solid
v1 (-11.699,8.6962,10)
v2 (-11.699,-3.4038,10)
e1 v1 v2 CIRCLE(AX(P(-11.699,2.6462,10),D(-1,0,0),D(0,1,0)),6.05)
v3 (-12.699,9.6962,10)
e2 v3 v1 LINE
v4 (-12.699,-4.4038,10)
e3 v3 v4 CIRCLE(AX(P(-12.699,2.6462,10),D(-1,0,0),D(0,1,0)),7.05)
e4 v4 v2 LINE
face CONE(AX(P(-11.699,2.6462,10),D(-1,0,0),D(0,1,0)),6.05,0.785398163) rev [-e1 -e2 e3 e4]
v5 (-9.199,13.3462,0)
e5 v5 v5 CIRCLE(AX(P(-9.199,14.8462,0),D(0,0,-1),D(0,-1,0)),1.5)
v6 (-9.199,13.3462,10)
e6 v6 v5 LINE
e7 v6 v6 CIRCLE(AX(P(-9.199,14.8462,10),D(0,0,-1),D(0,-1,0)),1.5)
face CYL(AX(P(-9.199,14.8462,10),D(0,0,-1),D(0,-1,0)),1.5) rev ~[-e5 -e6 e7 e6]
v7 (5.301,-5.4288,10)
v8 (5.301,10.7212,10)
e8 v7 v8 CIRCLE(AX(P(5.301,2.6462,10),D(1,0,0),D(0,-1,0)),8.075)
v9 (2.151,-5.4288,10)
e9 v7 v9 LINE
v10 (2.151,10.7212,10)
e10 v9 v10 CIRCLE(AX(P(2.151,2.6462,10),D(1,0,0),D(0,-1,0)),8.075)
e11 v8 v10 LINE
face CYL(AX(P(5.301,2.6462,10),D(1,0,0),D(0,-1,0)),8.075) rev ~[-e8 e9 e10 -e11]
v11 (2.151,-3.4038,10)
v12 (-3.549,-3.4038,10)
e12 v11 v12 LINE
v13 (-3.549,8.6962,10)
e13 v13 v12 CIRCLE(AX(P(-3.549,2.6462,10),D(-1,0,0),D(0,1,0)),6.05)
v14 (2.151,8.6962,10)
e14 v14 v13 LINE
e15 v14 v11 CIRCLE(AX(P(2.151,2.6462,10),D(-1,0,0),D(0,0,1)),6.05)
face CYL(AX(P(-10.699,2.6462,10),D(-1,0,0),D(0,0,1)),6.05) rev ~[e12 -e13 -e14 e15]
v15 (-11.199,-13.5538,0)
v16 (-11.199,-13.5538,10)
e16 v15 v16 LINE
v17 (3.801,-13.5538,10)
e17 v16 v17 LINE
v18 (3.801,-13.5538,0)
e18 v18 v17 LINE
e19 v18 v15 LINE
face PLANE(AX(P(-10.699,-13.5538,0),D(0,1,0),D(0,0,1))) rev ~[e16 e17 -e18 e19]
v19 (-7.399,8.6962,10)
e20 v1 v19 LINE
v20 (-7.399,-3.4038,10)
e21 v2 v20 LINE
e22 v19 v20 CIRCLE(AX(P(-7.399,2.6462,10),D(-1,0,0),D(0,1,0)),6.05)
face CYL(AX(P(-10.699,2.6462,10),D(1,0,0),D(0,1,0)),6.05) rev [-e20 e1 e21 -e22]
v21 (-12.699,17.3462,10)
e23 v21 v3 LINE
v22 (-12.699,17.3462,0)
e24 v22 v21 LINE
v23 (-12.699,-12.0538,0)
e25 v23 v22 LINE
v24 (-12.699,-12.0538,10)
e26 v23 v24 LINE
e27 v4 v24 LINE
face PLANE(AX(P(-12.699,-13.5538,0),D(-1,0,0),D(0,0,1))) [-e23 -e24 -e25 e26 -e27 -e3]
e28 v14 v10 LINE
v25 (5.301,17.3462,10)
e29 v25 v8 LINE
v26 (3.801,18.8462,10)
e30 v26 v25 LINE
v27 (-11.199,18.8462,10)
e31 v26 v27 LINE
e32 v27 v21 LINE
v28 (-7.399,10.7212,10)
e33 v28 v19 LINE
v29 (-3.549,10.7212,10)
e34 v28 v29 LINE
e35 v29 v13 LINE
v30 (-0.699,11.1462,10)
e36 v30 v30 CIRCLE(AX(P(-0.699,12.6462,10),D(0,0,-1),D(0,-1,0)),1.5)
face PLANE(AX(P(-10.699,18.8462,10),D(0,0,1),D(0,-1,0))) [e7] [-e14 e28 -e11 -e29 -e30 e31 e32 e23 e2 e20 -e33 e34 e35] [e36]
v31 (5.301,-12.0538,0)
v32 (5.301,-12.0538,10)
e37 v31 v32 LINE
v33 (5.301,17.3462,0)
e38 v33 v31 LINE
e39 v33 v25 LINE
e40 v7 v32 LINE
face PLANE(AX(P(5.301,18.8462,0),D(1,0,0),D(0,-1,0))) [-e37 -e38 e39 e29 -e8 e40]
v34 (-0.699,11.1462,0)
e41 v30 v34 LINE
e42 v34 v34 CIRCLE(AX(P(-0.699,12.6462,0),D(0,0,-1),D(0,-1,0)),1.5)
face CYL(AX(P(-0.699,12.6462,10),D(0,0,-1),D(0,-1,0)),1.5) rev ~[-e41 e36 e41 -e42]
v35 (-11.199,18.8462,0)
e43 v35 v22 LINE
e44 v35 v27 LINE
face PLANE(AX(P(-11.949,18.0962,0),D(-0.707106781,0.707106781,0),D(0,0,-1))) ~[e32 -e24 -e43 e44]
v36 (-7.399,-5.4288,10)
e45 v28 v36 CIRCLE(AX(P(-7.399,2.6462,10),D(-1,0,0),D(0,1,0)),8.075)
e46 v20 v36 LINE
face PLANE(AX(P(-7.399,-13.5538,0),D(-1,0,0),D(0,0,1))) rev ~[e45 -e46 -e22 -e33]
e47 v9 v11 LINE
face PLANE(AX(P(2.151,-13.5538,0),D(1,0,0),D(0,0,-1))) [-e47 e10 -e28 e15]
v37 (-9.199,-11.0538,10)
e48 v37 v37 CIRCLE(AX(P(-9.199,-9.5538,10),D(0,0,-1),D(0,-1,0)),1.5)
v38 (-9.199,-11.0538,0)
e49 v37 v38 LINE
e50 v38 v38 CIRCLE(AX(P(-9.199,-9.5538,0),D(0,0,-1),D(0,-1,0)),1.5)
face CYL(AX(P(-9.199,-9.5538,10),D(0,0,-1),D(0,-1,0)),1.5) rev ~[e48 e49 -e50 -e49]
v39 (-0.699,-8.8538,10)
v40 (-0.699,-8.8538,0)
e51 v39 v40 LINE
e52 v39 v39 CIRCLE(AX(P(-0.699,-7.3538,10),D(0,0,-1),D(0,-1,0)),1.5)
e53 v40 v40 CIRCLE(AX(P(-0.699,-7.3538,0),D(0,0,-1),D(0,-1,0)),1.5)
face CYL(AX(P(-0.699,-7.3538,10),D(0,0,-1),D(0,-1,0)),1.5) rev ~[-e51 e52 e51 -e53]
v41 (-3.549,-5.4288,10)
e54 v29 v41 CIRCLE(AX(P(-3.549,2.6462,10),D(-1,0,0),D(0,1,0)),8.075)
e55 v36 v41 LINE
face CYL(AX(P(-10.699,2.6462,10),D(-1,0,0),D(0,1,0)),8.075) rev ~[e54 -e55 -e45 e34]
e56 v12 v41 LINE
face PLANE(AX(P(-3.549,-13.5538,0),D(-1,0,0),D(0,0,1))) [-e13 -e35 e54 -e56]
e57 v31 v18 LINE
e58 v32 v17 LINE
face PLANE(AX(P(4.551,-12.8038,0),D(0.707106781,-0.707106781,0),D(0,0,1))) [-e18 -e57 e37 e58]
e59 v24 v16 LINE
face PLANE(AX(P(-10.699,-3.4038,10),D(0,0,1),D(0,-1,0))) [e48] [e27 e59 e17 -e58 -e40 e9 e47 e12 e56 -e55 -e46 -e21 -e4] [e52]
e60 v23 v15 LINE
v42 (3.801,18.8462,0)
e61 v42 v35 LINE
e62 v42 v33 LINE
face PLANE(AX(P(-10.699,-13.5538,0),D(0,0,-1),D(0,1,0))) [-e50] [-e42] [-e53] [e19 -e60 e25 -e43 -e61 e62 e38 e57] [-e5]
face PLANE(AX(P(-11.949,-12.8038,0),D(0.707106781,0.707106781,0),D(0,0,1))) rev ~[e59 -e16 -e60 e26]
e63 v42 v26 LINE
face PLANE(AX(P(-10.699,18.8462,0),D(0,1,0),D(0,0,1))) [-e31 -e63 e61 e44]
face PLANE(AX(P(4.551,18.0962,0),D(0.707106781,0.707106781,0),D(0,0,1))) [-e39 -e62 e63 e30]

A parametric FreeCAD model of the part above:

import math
import FreeCAD as App
import Part
import Sketcher


def edges_at(feature, points):
    """Names of the edges that pass closest to the given points."""
    edges = feature.Shape.Edges
    near = lambda p: min(range(len(edges)), key=lambda i: edges[i].distToShape(Part.Vertex(*p))[0])
    return sorted({f"Edge{near(p) + 1}" for p in points})

doc = App.newDocument("Part")
body = doc.addObject("PartDesign::Body", "Body")

# Sketch on XY plane
sketch1 = body.newObject("Sketcher::SketchObject", "Sketch")
sketch1.AttachmentSupport = (doc.getObject("XY_Plane"), [""])
sketch1.MapMode = "FlatFace"
sketch1.addGeometry([
    Part.LineSegment(App.Vector(5, 19, 0), App.Vector(-11, 19, 0)),
    Part.LineSegment(App.Vector(-11, 19, 0), App.Vector(-11, -14, 0)),
    Part.LineSegment(App.Vector(-11, -14, 0), App.Vector(5, -14, 0)),
    Part.LineSegment(App.Vector(5, -14, 0), App.Vector(5, 19, 0)),
], False)
sketch1.addConstraint([
    Sketcher.Constraint("Coincident", 0, 2, 1, 1),
    Sketcher.Constraint("Coincident", 1, 2, 2, 1),
    Sketcher.Constraint("Coincident", 2, 2, 3, 1),
    Sketcher.Constraint("Coincident", 3, 2, 0, 1),
    Sketcher.Constraint("Horizontal", 0),
    Sketcher.Constraint("Vertical", 1),
    Sketcher.Constraint("Horizontal", 2),
    Sketcher.Constraint("Vertical", 3),
    Sketcher.Constraint("DistanceX", 0, 2, 0, 1, 16.0),
    Sketcher.Constraint("DistanceY", 1, 2, 1, 1, 32.4),
    Sketcher.Constraint("DistanceX", 0, 2, -1, 1, 10.699),
    Sketcher.Constraint("DistanceY", -1, 1, 0, 2, 18.8462),
])
pad1 = body.newObject("PartDesign::Pad", "Pad")
pad1.Profile = sketch1
pad1.Length = 10

# Sketch on YZ plane
sketch2 = body.newObject("Sketcher::SketchObject", "Sketch001")
sketch2.AttachmentSupport = (doc.getObject("YZ_Plane"), [""])
sketch2.MapMode = "FlatFace"
sketch2.AttachmentOffset = App.Placement(App.Vector(0, 0, -10.699), App.Rotation())
sketch2.addGeometry(Part.Circle(App.Vector(3, 10, 0), App.Vector(0, 0, 1), 6), False)
sketch2.addConstraint([
    Sketcher.Constraint("Diameter", 0, 12.1),
    Sketcher.Constraint("DistanceY", -1, 1, 0, 3, 10.0),
    Sketcher.Constraint("DistanceX", -1, 1, 0, 3, 2.6462),
])
pocket1 = body.newObject("PartDesign::Pocket", "Pocket")
pocket1.Profile = sketch2
pocket1.Length = 13
pocket1.Reversed = True

# Sketch on YZ plane
sketch3 = body.newObject("Sketcher::SketchObject", "Sketch002")
sketch3.AttachmentSupport = (doc.getObject("YZ_Plane"), [""])
sketch3.MapMode = "FlatFace"
sketch3.AttachmentOffset = App.Placement(App.Vector(0, 0, -10.699), App.Rotation())
sketch3.addGeometry([
    Part.ArcOfCircle(Part.Circle(App.Vector(2.6, 10, 0), App.Vector(0, 0, 1), 6.1), math.radians(180), math.radians(360)),
    Part.LineSegment(App.Vector(8.7, 10, 0), App.Vector(10.7, 10, 0)),
    Part.ArcOfCircle(Part.Circle(App.Vector(2.6, 10, 0), App.Vector(0, 0, 1), 8.1), math.radians(180), math.radians(360)),
    Part.LineSegment(App.Vector(-5.4, 10, 0), App.Vector(-3.4, 10, 0)),
], False)
sketch3.addConstraint([
    Sketcher.Constraint("Coincident", 0, 2, 1, 1),
    Sketcher.Constraint("Coincident", 1, 2, 2, 2),
    Sketcher.Constraint("Coincident", 2, 1, 3, 1),
    Sketcher.Constraint("Coincident", 3, 2, 0, 1),
    Sketcher.Constraint("Horizontal", 1),
    Sketcher.Constraint("Horizontal", 3),
    Sketcher.Constraint("Coincident", 2, 3, 0, 3),
    Sketcher.Constraint("Horizontal", 2, 3, 0, 2),
    Sketcher.Constraint("Horizontal", 1, 2, 2, 1),
    Sketcher.Constraint("Radius", 2, 8.075),
    Sketcher.Constraint("Radius", 0, 6.05),
    Sketcher.Constraint("DistanceY", -1, 1, 0, 3, 10.0),
    Sketcher.Constraint("DistanceX", -1, 1, 0, 3, 2.6462),
])
pocket2 = body.newObject("PartDesign::Pocket", "Pocket001")
pocket2.Profile = sketch3
pocket2.Length = 7.15
pocket2.Reversed = True

# Sketch on YZ plane
sketch4 = body.newObject("Sketcher::SketchObject", "Sketch003")
sketch4.AttachmentSupport = (doc.getObject("YZ_Plane"), [""])
sketch4.MapMode = "FlatFace"
sketch4.AttachmentOffset = App.Placement(App.Vector(0, 0, -10.699), App.Rotation())
sketch4.addGeometry([
    Part.ArcOfCircle(Part.Circle(App.Vector(2.6, 10, 0), App.Vector(0, 0, 1), 6.1), math.radians(180), math.radians(360)),
    Part.LineSegment(App.Vector(8.7, 10, 0), App.Vector(10.7, 10, 0)),
    Part.ArcOfCircle(Part.Circle(App.Vector(2.6, 10, 0), App.Vector(0, 0, 1), 8.1), math.radians(180), math.radians(360)),
    Part.LineSegment(App.Vector(-5.4, 10, 0), App.Vector(-3.4, 10, 0)),
], False)
sketch4.addConstraint([
    Sketcher.Constraint("Coincident", 0, 2, 1, 1),
    Sketcher.Constraint("Coincident", 1, 2, 2, 2),
    Sketcher.Constraint("Coincident", 2, 1, 3, 1),
    Sketcher.Constraint("Coincident", 3, 2, 0, 1),
    Sketcher.Constraint("Horizontal", 1),
    Sketcher.Constraint("Horizontal", 3),
    Sketcher.Constraint("Coincident", 2, 3, 0, 3),
    Sketcher.Constraint("Horizontal", 2, 3, 0, 2),
    Sketcher.Constraint("Horizontal", 1, 2, 2, 1),
    Sketcher.Constraint("Radius", 2, 8.075),
    Sketcher.Constraint("Radius", 0, 6.05),
    Sketcher.Constraint("DistanceY", -1, 1, 0, 3, 10.0),
    Sketcher.Constraint("DistanceX", -1, 1, 0, 3, 2.6462),
])
pad2 = body.newObject("PartDesign::Pad", "Pad001")
pad2.Profile = sketch4
pad2.Length = 3.3

# Sketch on YZ plane
sketch5 = body.newObject("Sketcher::SketchObject", "Sketch004")
sketch5.AttachmentSupport = (doc.getObject("YZ_Plane"), [""])
sketch5.MapMode = "FlatFace"
sketch5.AttachmentOffset = App.Placement(App.Vector(0, 0, 5.301), App.Rotation())
sketch5.addGeometry([
    Part.LineSegment(App.Vector(11, 10, 0), App.Vector(-5, 10, 0)),
    Part.ArcOfCircle(Part.Circle(App.Vector(3, 10, 0), App.Vector(0, 0, 1), 8), math.radians(180), math.radians(360)),
], False)
sketch5.addConstraint([
    Sketcher.Constraint("Coincident", 0, 1, 1, 2),
    Sketcher.Constraint("Coincident", 1, 1, 0, 2),
    Sketcher.Constraint("Horizontal", 0),
    Sketcher.Constraint("Horizontal", 1, 3, 0, 1),
    Sketcher.Constraint("DistanceY", -1, 1, 1, 3, 10.0),
    Sketcher.Constraint("Radius", 1, 8.075),
    Sketcher.Constraint("DistanceX", -1, 1, 1, 3, 2.6462),
])
pocket3 = body.newObject("PartDesign::Pocket", "Pocket002")
pocket3.Profile = sketch5
pocket3.Length = 3.15

# Sketch on XY plane
sketch6 = body.newObject("Sketcher::SketchObject", "Sketch005")
sketch6.AttachmentSupport = (doc.getObject("XY_Plane"), [""])
sketch6.MapMode = "FlatFace"
sketch6.AttachmentOffset = App.Placement(App.Vector(0, 0, 10), App.Rotation())
sketch6.addGeometry([
    Part.Circle(App.Vector(-0.7, -7.4, 0), App.Vector(0, 0, 1), 1.5),
    Part.Circle(App.Vector(-0.7, 12.6, 0), App.Vector(0, 0, 1), 1.5),
], False)
sketch6.addConstraint([
    Sketcher.Constraint("Equal", 0, 1),
    Sketcher.Constraint("Vertical", 0, 3, 1, 3),
    Sketcher.Constraint("Diameter", 0, 3.0),
    Sketcher.Constraint("DistanceY", 0, 3, 1, 3, 20.0),
    Sketcher.Constraint("DistanceX", 0, 3, -1, 1, 0.699),
    Sketcher.Constraint("DistanceY", 0, 3, -1, 1, 7.3538),
])
doc.recompute()
hole = body.newObject("PartDesign::Hole", "Hole")
hole.Profile = sketch6
hole.ThreadType = "None"
hole.Diameter = 3
hole.DepthType = "ThroughAll"
doc.recompute()

chamfer = body.newObject("PartDesign::Chamfer", "Chamfer")
chamfer.Base = (hole, edges_at(hole, [(5.301, -13.554, 5), (5.301, 18.846, 5)]))
chamfer.Size = 1.5

# Sketch on YZ plane
sketch7 = body.newObject("Sketcher::SketchObject", "Sketch006")
sketch7.AttachmentSupport = (doc.getObject("YZ_Plane"), [""])
sketch7.MapMode = "FlatFace"
sketch7.AttachmentOffset = App.Placement(App.Vector(0, 0, -10.699), App.Rotation())
sketch7.addGeometry([
    Part.LineSegment(App.Vector(9, 10, 0), App.Vector(19, 10, 0)),  # 0
    Part.LineSegment(App.Vector(19, 10, 0), App.Vector(19, 0, 0)),  # 1
    Part.LineSegment(App.Vector(19, 0, 0), App.Vector(-14, 0, 0)),  # 2
    Part.LineSegment(App.Vector(-14, 0, 0), App.Vector(-14, 10, 0)),  # 3
    Part.LineSegment(App.Vector(-14, 10, 0), App.Vector(-3, 10, 0)),  # 4
    Part.ArcOfCircle(Part.Circle(App.Vector(3, 10, 0), App.Vector(0, 0, 1), 6), math.radians(180), math.radians(360)),  # 5
], False)
sketch7.addConstraint([
    Sketcher.Constraint("Coincident", 0, 2, 1, 1),
    Sketcher.Constraint("Coincident", 1, 2, 2, 1),
    Sketcher.Constraint("Coincident", 2, 2, 3, 1),
    Sketcher.Constraint("Coincident", 3, 2, 4, 1),
    Sketcher.Constraint("Coincident", 4, 2, 5, 1),
    Sketcher.Constraint("Coincident", 5, 2, 0, 1),
    Sketcher.Constraint("Horizontal", 0),
    Sketcher.Constraint("Vertical", 1),
    Sketcher.Constraint("Horizontal", 2),
    Sketcher.Constraint("Vertical", 3),
    Sketcher.Constraint("Horizontal", 4),
    Sketcher.Constraint("PointOnObject", 1, 2, -1),
    Sketcher.Constraint("Horizontal", 5, 3, 0, 2),
    Sketcher.Constraint("Horizontal", 0, 2, 3, 2),
    Sketcher.Constraint("Equal", 0, 4),
    Sketcher.Constraint("DistanceY", 1, 2, 1, 1, 10.0),
    Sketcher.Constraint("Radius", 5, 6.05),
    Sketcher.Constraint("DistanceX", 2, 2, 2, 1, 32.4),
    Sketcher.Constraint("DistanceX", -1, 1, 5, 3, 2.6462),
])
pad3 = body.newObject("PartDesign::Pad", "Pad002")
pad3.Profile = sketch7
pad3.Length = 2
pad3.Reversed = True
doc.recompute()

chamfer2 = body.newObject("PartDesign::Chamfer", "Chamfer001")
chamfer2.Base = (pad3, edges_at(pad3, [(-12.699, -13.554, 5), (-12.699, 18.846, 5)]))
chamfer2.Size = 1.5
doc.recompute()

chamfer3 = body.newObject("PartDesign::Chamfer", "Chamfer002")
chamfer3.Base = (chamfer2, edges_at(chamfer2, [(-12.699, 2.646, 3.95)]))
chamfer3.Size = 1

# Sketch on XY plane
sketch8 = body.newObject("Sketcher::SketchObject", "Sketch007")
sketch8.AttachmentSupport = (doc.getObject("XY_Plane"), [""])
sketch8.MapMode = "FlatFace"
sketch8.AttachmentOffset = App.Placement(App.Vector(0, 0, 10), App.Rotation())
sketch8.addGeometry([
    Part.Circle(App.Vector(-9.2, -9.6, 0), App.Vector(0, 0, 1), 1.5),
    Part.Circle(App.Vector(-9.2, 14.8, 0), App.Vector(0, 0, 1), 1.5),
], False)
sketch8.addConstraint([
    Sketcher.Constraint("Equal", 0, 1),
    Sketcher.Constraint("Vertical", 0, 3, 1, 3),
    Sketcher.Constraint("Diameter", 0, 3.0),
    Sketcher.Constraint("DistanceY", 0, 3, 1, 3, 24.4),
    Sketcher.Constraint("DistanceX", 0, 3, -1, 1, 9.199),
    Sketcher.Constraint("DistanceY", 0, 3, -1, 1, 9.5538),
])
doc.recompute()
hole2 = body.newObject("PartDesign::Hole", "Hole001")
hole2.Profile = sketch8
hole2.ThreadType = "None"
hole2.Diameter = 3
hole2.DepthType = "ThroughAll"

doc.recompute()
